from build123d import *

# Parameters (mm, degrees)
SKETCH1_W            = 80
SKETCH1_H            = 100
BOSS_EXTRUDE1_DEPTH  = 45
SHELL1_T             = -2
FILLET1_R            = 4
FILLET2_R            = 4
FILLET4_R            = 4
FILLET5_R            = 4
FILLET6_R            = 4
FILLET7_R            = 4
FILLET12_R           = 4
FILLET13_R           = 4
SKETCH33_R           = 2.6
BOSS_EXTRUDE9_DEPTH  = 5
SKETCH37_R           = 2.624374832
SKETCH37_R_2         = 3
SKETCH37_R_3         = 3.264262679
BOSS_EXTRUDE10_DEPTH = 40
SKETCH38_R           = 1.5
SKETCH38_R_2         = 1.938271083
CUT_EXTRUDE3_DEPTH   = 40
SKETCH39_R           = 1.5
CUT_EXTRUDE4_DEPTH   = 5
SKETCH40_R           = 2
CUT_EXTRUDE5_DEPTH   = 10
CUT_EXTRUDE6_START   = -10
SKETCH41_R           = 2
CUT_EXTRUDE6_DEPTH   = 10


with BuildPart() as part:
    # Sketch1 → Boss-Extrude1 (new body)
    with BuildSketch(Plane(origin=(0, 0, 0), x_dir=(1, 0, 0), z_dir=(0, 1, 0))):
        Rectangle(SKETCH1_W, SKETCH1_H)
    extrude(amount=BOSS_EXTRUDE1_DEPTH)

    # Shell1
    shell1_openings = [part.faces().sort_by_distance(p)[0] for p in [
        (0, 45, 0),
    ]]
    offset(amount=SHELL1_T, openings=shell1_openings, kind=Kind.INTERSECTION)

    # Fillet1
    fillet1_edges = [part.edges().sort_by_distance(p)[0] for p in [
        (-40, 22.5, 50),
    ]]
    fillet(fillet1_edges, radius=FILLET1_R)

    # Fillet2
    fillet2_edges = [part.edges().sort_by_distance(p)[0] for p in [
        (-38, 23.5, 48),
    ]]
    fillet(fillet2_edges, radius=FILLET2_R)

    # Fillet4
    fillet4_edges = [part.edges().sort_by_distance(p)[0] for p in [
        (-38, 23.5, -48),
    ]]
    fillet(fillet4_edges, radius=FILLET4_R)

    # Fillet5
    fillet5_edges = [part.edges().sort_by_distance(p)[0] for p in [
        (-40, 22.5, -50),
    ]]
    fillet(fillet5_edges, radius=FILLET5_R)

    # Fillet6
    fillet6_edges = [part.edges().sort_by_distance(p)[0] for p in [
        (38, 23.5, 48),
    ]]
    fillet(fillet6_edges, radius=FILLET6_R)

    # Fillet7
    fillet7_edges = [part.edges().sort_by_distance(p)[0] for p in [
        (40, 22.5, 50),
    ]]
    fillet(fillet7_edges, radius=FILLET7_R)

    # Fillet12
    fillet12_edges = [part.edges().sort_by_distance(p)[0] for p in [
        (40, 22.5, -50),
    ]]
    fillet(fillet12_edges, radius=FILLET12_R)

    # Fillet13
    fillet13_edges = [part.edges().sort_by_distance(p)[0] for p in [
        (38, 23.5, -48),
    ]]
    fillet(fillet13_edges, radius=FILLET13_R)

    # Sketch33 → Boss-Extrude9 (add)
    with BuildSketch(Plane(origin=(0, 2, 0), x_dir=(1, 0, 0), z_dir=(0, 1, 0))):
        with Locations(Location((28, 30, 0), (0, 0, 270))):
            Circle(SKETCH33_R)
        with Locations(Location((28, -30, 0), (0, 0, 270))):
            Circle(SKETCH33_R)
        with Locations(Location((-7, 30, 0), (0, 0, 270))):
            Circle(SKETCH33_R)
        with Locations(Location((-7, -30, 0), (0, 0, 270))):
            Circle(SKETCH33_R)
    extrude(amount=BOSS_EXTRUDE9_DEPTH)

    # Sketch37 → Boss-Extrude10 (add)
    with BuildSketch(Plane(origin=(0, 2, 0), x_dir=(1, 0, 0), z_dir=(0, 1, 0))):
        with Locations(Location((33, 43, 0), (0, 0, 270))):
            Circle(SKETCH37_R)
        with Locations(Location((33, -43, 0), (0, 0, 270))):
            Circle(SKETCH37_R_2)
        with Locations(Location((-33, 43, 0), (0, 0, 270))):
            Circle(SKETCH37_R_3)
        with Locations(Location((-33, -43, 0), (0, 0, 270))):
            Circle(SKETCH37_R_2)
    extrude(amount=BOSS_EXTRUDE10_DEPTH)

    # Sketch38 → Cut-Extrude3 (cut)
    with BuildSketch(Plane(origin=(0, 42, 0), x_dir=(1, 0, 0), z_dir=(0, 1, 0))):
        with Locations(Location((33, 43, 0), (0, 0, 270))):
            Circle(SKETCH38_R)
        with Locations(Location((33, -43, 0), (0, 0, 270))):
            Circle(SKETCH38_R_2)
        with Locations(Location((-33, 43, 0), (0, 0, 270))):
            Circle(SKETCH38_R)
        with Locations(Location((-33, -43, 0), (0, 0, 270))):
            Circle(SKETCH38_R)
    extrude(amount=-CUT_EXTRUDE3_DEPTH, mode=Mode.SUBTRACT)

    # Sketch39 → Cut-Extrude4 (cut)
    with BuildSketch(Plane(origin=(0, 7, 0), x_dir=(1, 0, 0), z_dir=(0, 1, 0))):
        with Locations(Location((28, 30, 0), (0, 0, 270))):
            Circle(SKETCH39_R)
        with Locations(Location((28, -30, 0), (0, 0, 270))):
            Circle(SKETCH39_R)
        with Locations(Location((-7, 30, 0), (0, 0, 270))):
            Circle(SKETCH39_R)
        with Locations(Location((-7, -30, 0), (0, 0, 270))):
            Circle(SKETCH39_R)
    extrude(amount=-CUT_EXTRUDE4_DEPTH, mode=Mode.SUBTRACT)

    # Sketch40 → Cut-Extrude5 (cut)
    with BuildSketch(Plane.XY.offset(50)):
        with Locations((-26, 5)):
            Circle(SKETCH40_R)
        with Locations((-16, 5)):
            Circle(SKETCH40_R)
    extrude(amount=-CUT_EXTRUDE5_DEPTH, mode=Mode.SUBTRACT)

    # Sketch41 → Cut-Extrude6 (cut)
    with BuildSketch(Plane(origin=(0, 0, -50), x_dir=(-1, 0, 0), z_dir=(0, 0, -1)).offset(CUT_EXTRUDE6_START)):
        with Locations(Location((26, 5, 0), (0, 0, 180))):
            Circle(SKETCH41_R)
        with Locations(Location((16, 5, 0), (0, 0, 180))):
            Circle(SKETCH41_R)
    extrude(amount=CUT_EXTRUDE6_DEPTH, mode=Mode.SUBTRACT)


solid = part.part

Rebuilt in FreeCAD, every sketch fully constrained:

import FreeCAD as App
import Part
import Sketcher
from FreeCAD import Vector
Q = App.Units.Quantity


def edges_at(feature, points):
    """Names of the edges that pass closest to the given points."""
    edges = feature.Shape.Edges
    near = lambda p: min(range(len(edges)), key=lambda i: edges[i].distToShape(Part.Vertex(*p))[0])
    return sorted({f"Edge{near(p) + 1}" for p in points})


def faces_at(feature, points):
    """Names of the faces that lie closest to the given points."""
    faces = feature.Shape.Faces
    near = lambda p: min(range(len(faces)), key=lambda i: faces[i].distToShape(Part.Vertex(*p))[0])
    return sorted({f"Face{near(p) + 1}" for p in points})

doc = App.newDocument("Part")
body = doc.addObject("PartDesign::Body", "Body")

sketch1 = body.newObject("Sketcher::SketchObject", "Sketch")
sketch1.AttachmentSupport = (doc.getObject("XZ_Plane"), [""])
sketch1.MapMode = "FlatFace"
sketch1.addGeometry([
    Part.LineSegment(Vector(-40, -50, 0), Vector(-40, 50, 0)),
    Part.LineSegment(Vector(-40, 50, 0), Vector(40, 50, 0)),
    Part.LineSegment(Vector(40, 50, 0), Vector(40, -50, 0)),
    Part.LineSegment(Vector(40, -50, 0), Vector(-40, -50, 0)),
], False)
sketch1.addConstraint([
    Sketcher.Constraint("Coincident", 0, 2, 1, 1),
    Sketcher.Constraint("Coincident", 1, 2, 2, 1),
    Sketcher.Constraint("Coincident", 2, 2, 3, 1),
    Sketcher.Constraint("Coincident", 3, 2, 0, 1),
    Sketcher.Constraint("Vertical", 0),
    Sketcher.Constraint("Horizontal", 1),
    Sketcher.Constraint("Vertical", 2),
    Sketcher.Constraint("Horizontal", 3),
    Sketcher.Constraint("Symmetric", 0, 2, 2, 2, -1, 1),
    Sketcher.Constraint("DistanceX", 1, 1, 1, 2, Q("80 mm")),
    Sketcher.Constraint("DistanceY", 0, 1, 0, 2, Q("100 mm")),
])
pad1 = body.newObject("PartDesign::Pad", "Pad")
pad1.Profile = sketch1
pad1.Length = 45
pad1.Reversed = True
doc.recompute()

thickness = body.newObject("PartDesign::Thickness", "Thickness")
thickness.Base = (pad1, faces_at(pad1, [(0, 45, 0)]))
thickness.Value = 2
thickness.Reversed = True
thickness.Join = "Intersection"
doc.recompute()

fillet = body.newObject("PartDesign::Fillet", "Fillet")
fillet.Base = (thickness, edges_at(thickness, [(-40, 22.5, 50)]))
fillet.Radius = 4
doc.recompute()

fillet2 = body.newObject("PartDesign::Fillet", "Fillet001")
fillet2.Base = (fillet, edges_at(fillet, [(-38, 23.5, 48)]))
fillet2.Radius = 4
doc.recompute()

fillet3 = body.newObject("PartDesign::Fillet", "Fillet002")
fillet3.Base = (fillet2, edges_at(fillet2, [(-38, 23.5, -48)]))
fillet3.Radius = 4
doc.recompute()

fillet4 = body.newObject("PartDesign::Fillet", "Fillet003")
fillet4.Base = (fillet3, edges_at(fillet3, [(-40, 22.5, -50)]))
fillet4.Radius = 4
doc.recompute()

fillet5 = body.newObject("PartDesign::Fillet", "Fillet004")
fillet5.Base = (fillet4, edges_at(fillet4, [(38, 23.5, 48)]))
fillet5.Radius = 4
doc.recompute()

fillet6 = body.newObject("PartDesign::Fillet", "Fillet005")
fillet6.Base = (fillet5, edges_at(fillet5, [(40, 22.5, 50)]))
fillet6.Radius = 4
doc.recompute()

fillet7 = body.newObject("PartDesign::Fillet", "Fillet006")
fillet7.Base = (fillet6, edges_at(fillet6, [(40, 22.5, -50)]))
fillet7.Radius = 4
doc.recompute()

fillet8 = body.newObject("PartDesign::Fillet", "Fillet007")
fillet8.Base = (fillet7, edges_at(fillet7, [(38, 23.5, -48)]))
fillet8.Radius = 4

sketch2 = body.newObject("Sketcher::SketchObject", "Sketch001")
sketch2.AttachmentSupport = (doc.getObject("XZ_Plane"), [""])
sketch2.MapMode = "FlatFace"
sketch2.AttachmentOffset = App.Placement(Vector(0, 0, -2), App.Rotation())
sketch2.addGeometry([
    Part.Circle(Vector(28, -30, 0), Vector(0, 0, 1), 2.6),
    Part.Circle(Vector(28, 30, 0), Vector(0, 0, 1), 2.6),
    Part.Circle(Vector(-7, -30, 0), Vector(0, 0, 1), 2.6),
    Part.Circle(Vector(-7, 30, 0), Vector(0, 0, 1), 2.6),
], False)
sketch2.addConstraint([
    Sketcher.Constraint("Equal", 0, 1),
    Sketcher.Constraint("Equal", 1, 2),
    Sketcher.Constraint("Equal", 2, 3),
    Sketcher.Constraint("Symmetric", 0, 3, 1, 3, -1),
    Sketcher.Constraint("Symmetric", 2, 3, 3, 3, -1),
    Sketcher.Constraint("Horizontal", 0, 3, 2, 3),
    Sketcher.Constraint("Diameter", 0, Q("5.2 mm")),
    Sketcher.Constraint("DistanceX", -1, 1, 0, 3, Q("28 mm")),
    Sketcher.Constraint("DistanceY", 0, 3, -1, 1, Q("30 mm")),
    Sketcher.Constraint("DistanceX", 2, 3, -1, 1, Q("7 mm")),
])
pad2 = body.newObject("PartDesign::Pad", "Pad001")
pad2.Profile = sketch2
pad2.Length = 5
pad2.Reversed = True

sketch3 = body.newObject("Sketcher::SketchObject", "Sketch002")
sketch3.AttachmentSupport = (doc.getObject("XZ_Plane"), [""])
sketch3.MapMode = "FlatFace"
sketch3.AttachmentOffset = App.Placement(Vector(0, 0, -2), App.Rotation())
sketch3.addGeometry([
    Part.Circle(Vector(33, -43, 0), Vector(0, 0, 1), 2.6),
    Part.Circle(Vector(33, 43, 0), Vector(0, 0, 1), 3),
    Part.Circle(Vector(-33, -43, 0), Vector(0, 0, 1), 3.3),
    Part.Circle(Vector(-33, 43, 0), Vector(0, 0, 1), 3),
], False)
sketch3.addConstraint([
    Sketcher.Constraint("Equal", 1, 3),
    Sketcher.Constraint("Symmetric", 1, 3, 2, 3, -1, 1),
    Sketcher.Constraint("Symmetric", 0, 3, 3, 3, -1, 1),
    Sketcher.Constraint("Symmetric", 0, 3, 2, 3, -2),
    Sketcher.Constraint("Diameter", 1, Q("6 mm")),
    Sketcher.Constraint("DistanceX", -1, 1, 0, 3, Q("33 mm")),
    Sketcher.Constraint("DistanceY", 0, 3, -1, 1, Q("43 mm")),
    Sketcher.Constraint("Diameter", 0, Q("5.24875 mm")),
    Sketcher.Constraint("Diameter", 2, Q("6.528525 mm")),
])
pad3 = body.newObject("PartDesign::Pad", "Pad002")
pad3.Profile = sketch3
pad3.Length = 40
pad3.Reversed = True

sketch4 = body.newObject("Sketcher::SketchObject", "Sketch003")
sketch4.AttachmentSupport = (doc.getObject("XZ_Plane"), [""])
sketch4.MapMode = "FlatFace"
sketch4.AttachmentOffset = App.Placement(Vector(0, 0, -42), App.Rotation())
sketch4.addGeometry([
    Part.Circle(Vector(33, -43, 0), Vector(0, 0, 1), 1.5),
    Part.Circle(Vector(33, 43, 0), Vector(0, 0, 1), 1.9),
    Part.Circle(Vector(-33, -43, 0), Vector(0, 0, 1), 1.5),
    Part.Circle(Vector(-33, 43, 0), Vector(0, 0, 1), 1.5),
], False)
sketch4.addConstraint([
    Sketcher.Constraint("Equal", 0, 2),
    Sketcher.Constraint("Equal", 2, 3),
    Sketcher.Constraint("Symmetric", 1, 3, 2, 3, -1, 1),
    Sketcher.Constraint("Symmetric", 0, 3, 3, 3, -1, 1),
    Sketcher.Constraint("Symmetric", 0, 3, 2, 3, -2),
    Sketcher.Constraint("Diameter", 0, Q("3 mm")),
    Sketcher.Constraint("DistanceX", -1, 1, 0, 3, Q("33 mm")),
    Sketcher.Constraint("DistanceY", 0, 3, -1, 1, Q("43 mm")),
    Sketcher.Constraint("Diameter", 1, Q("3.876542 mm")),
])
pocket1 = body.newObject("PartDesign::Pocket", "Pocket")
pocket1.Profile = sketch4
pocket1.Length = 40
pocket1.Reversed = True

sketch5 = body.newObject("Sketcher::SketchObject", "Sketch004")
sketch5.AttachmentSupport = (doc.getObject("XZ_Plane"), [""])
sketch5.MapMode = "FlatFace"
sketch5.AttachmentOffset = App.Placement(Vector(0, 0, -7), App.Rotation())
sketch5.addGeometry([
    Part.Circle(Vector(28, -30, 0), Vector(0, 0, 1), 1.5),
    Part.Circle(Vector(28, 30, 0), Vector(0, 0, 1), 1.5),
    Part.Circle(Vector(-7, -30, 0), Vector(0, 0, 1), 1.5),
    Part.Circle(Vector(-7, 30, 0), Vector(0, 0, 1), 1.5),
], False)
sketch5.addConstraint([
    Sketcher.Constraint("Equal", 0, 1),
    Sketcher.Constraint("Equal", 1, 2),
    Sketcher.Constraint("Equal", 2, 3),
    Sketcher.Constraint("Symmetric", 0, 3, 1, 3, -1),
    Sketcher.Constraint("Symmetric", 2, 3, 3, 3, -1),
    Sketcher.Constraint("Horizontal", 0, 3, 2, 3),
    Sketcher.Constraint("Diameter", 0, Q("3 mm")),
    Sketcher.Constraint("DistanceX", -1, 1, 0, 3, Q("28 mm")),
    Sketcher.Constraint("DistanceY", 0, 3, -1, 1, Q("30 mm")),
    Sketcher.Constraint("DistanceX", 2, 3, -1, 1, Q("7 mm")),
])
pocket2 = body.newObject("PartDesign::Pocket", "Pocket001")
pocket2.Profile = sketch5
pocket2.Length = 5
pocket2.Reversed = True

sketch6 = body.newObject("Sketcher::SketchObject", "Sketch005")
sketch6.AttachmentSupport = (doc.getObject("XY_Plane"), [""])
sketch6.MapMode = "FlatFace"
sketch6.AttachmentOffset = App.Placement(Vector(0, 0, 50), App.Rotation())
sketch6.addGeometry([
    Part.Circle(Vector(-26, 5, 0), Vector(0, 0, 1), 2),
    Part.Circle(Vector(-16, 5, 0), Vector(0, 0, 1), 2),
], False)
sketch6.addConstraint([
    Sketcher.Constraint("Equal", 0, 1),
    Sketcher.Constraint("Horizontal", 0, 3, 1, 3),
    Sketcher.Constraint("Diameter", 0, Q("4 mm")),
    Sketcher.Constraint("DistanceX", 0, 3, -1, 1, Q("26 mm")),
    Sketcher.Constraint("DistanceY", -1, 1, 0, 3, Q("5 mm")),
    Sketcher.Constraint("DistanceX", 1, 3, -1, 1, Q("16 mm")),
])
pocket3 = body.newObject("PartDesign::Pocket", "Pocket002")
pocket3.Profile = sketch6
pocket3.Length = 10

sketch7 = body.newObject("Sketcher::SketchObject", "Sketch006")
sketch7.AttachmentSupport = (doc.getObject("XY_Plane"), [""])
sketch7.MapMode = "FlatFace"
sketch7.AttachmentOffset = App.Placement(Vector(0, 0, -40), App.Rotation())
sketch7.addGeometry([
    Part.Circle(Vector(-26, 5, 0), Vector(0, 0, 1), 2),
    Part.Circle(Vector(-16, 5, 0), Vector(0, 0, 1), 2),
], False)
sketch7.addConstraint([
    Sketcher.Constraint("Equal", 0, 1),
    Sketcher.Constraint("Horizontal", 0, 3, 1, 3),
    Sketcher.Constraint("Diameter", 0, Q("4 mm")),
    Sketcher.Constraint("DistanceX", 0, 3, -1, 1, Q("26 mm")),
    Sketcher.Constraint("DistanceY", -1, 1, 0, 3, Q("5 mm")),
    Sketcher.Constraint("DistanceX", 1, 3, -1, 1, Q("16 mm")),
])
pocket4 = body.newObject("PartDesign::Pocket", "Pocket003")
pocket4.Profile = sketch7
pocket4.Length = 10

doc.recompute()
